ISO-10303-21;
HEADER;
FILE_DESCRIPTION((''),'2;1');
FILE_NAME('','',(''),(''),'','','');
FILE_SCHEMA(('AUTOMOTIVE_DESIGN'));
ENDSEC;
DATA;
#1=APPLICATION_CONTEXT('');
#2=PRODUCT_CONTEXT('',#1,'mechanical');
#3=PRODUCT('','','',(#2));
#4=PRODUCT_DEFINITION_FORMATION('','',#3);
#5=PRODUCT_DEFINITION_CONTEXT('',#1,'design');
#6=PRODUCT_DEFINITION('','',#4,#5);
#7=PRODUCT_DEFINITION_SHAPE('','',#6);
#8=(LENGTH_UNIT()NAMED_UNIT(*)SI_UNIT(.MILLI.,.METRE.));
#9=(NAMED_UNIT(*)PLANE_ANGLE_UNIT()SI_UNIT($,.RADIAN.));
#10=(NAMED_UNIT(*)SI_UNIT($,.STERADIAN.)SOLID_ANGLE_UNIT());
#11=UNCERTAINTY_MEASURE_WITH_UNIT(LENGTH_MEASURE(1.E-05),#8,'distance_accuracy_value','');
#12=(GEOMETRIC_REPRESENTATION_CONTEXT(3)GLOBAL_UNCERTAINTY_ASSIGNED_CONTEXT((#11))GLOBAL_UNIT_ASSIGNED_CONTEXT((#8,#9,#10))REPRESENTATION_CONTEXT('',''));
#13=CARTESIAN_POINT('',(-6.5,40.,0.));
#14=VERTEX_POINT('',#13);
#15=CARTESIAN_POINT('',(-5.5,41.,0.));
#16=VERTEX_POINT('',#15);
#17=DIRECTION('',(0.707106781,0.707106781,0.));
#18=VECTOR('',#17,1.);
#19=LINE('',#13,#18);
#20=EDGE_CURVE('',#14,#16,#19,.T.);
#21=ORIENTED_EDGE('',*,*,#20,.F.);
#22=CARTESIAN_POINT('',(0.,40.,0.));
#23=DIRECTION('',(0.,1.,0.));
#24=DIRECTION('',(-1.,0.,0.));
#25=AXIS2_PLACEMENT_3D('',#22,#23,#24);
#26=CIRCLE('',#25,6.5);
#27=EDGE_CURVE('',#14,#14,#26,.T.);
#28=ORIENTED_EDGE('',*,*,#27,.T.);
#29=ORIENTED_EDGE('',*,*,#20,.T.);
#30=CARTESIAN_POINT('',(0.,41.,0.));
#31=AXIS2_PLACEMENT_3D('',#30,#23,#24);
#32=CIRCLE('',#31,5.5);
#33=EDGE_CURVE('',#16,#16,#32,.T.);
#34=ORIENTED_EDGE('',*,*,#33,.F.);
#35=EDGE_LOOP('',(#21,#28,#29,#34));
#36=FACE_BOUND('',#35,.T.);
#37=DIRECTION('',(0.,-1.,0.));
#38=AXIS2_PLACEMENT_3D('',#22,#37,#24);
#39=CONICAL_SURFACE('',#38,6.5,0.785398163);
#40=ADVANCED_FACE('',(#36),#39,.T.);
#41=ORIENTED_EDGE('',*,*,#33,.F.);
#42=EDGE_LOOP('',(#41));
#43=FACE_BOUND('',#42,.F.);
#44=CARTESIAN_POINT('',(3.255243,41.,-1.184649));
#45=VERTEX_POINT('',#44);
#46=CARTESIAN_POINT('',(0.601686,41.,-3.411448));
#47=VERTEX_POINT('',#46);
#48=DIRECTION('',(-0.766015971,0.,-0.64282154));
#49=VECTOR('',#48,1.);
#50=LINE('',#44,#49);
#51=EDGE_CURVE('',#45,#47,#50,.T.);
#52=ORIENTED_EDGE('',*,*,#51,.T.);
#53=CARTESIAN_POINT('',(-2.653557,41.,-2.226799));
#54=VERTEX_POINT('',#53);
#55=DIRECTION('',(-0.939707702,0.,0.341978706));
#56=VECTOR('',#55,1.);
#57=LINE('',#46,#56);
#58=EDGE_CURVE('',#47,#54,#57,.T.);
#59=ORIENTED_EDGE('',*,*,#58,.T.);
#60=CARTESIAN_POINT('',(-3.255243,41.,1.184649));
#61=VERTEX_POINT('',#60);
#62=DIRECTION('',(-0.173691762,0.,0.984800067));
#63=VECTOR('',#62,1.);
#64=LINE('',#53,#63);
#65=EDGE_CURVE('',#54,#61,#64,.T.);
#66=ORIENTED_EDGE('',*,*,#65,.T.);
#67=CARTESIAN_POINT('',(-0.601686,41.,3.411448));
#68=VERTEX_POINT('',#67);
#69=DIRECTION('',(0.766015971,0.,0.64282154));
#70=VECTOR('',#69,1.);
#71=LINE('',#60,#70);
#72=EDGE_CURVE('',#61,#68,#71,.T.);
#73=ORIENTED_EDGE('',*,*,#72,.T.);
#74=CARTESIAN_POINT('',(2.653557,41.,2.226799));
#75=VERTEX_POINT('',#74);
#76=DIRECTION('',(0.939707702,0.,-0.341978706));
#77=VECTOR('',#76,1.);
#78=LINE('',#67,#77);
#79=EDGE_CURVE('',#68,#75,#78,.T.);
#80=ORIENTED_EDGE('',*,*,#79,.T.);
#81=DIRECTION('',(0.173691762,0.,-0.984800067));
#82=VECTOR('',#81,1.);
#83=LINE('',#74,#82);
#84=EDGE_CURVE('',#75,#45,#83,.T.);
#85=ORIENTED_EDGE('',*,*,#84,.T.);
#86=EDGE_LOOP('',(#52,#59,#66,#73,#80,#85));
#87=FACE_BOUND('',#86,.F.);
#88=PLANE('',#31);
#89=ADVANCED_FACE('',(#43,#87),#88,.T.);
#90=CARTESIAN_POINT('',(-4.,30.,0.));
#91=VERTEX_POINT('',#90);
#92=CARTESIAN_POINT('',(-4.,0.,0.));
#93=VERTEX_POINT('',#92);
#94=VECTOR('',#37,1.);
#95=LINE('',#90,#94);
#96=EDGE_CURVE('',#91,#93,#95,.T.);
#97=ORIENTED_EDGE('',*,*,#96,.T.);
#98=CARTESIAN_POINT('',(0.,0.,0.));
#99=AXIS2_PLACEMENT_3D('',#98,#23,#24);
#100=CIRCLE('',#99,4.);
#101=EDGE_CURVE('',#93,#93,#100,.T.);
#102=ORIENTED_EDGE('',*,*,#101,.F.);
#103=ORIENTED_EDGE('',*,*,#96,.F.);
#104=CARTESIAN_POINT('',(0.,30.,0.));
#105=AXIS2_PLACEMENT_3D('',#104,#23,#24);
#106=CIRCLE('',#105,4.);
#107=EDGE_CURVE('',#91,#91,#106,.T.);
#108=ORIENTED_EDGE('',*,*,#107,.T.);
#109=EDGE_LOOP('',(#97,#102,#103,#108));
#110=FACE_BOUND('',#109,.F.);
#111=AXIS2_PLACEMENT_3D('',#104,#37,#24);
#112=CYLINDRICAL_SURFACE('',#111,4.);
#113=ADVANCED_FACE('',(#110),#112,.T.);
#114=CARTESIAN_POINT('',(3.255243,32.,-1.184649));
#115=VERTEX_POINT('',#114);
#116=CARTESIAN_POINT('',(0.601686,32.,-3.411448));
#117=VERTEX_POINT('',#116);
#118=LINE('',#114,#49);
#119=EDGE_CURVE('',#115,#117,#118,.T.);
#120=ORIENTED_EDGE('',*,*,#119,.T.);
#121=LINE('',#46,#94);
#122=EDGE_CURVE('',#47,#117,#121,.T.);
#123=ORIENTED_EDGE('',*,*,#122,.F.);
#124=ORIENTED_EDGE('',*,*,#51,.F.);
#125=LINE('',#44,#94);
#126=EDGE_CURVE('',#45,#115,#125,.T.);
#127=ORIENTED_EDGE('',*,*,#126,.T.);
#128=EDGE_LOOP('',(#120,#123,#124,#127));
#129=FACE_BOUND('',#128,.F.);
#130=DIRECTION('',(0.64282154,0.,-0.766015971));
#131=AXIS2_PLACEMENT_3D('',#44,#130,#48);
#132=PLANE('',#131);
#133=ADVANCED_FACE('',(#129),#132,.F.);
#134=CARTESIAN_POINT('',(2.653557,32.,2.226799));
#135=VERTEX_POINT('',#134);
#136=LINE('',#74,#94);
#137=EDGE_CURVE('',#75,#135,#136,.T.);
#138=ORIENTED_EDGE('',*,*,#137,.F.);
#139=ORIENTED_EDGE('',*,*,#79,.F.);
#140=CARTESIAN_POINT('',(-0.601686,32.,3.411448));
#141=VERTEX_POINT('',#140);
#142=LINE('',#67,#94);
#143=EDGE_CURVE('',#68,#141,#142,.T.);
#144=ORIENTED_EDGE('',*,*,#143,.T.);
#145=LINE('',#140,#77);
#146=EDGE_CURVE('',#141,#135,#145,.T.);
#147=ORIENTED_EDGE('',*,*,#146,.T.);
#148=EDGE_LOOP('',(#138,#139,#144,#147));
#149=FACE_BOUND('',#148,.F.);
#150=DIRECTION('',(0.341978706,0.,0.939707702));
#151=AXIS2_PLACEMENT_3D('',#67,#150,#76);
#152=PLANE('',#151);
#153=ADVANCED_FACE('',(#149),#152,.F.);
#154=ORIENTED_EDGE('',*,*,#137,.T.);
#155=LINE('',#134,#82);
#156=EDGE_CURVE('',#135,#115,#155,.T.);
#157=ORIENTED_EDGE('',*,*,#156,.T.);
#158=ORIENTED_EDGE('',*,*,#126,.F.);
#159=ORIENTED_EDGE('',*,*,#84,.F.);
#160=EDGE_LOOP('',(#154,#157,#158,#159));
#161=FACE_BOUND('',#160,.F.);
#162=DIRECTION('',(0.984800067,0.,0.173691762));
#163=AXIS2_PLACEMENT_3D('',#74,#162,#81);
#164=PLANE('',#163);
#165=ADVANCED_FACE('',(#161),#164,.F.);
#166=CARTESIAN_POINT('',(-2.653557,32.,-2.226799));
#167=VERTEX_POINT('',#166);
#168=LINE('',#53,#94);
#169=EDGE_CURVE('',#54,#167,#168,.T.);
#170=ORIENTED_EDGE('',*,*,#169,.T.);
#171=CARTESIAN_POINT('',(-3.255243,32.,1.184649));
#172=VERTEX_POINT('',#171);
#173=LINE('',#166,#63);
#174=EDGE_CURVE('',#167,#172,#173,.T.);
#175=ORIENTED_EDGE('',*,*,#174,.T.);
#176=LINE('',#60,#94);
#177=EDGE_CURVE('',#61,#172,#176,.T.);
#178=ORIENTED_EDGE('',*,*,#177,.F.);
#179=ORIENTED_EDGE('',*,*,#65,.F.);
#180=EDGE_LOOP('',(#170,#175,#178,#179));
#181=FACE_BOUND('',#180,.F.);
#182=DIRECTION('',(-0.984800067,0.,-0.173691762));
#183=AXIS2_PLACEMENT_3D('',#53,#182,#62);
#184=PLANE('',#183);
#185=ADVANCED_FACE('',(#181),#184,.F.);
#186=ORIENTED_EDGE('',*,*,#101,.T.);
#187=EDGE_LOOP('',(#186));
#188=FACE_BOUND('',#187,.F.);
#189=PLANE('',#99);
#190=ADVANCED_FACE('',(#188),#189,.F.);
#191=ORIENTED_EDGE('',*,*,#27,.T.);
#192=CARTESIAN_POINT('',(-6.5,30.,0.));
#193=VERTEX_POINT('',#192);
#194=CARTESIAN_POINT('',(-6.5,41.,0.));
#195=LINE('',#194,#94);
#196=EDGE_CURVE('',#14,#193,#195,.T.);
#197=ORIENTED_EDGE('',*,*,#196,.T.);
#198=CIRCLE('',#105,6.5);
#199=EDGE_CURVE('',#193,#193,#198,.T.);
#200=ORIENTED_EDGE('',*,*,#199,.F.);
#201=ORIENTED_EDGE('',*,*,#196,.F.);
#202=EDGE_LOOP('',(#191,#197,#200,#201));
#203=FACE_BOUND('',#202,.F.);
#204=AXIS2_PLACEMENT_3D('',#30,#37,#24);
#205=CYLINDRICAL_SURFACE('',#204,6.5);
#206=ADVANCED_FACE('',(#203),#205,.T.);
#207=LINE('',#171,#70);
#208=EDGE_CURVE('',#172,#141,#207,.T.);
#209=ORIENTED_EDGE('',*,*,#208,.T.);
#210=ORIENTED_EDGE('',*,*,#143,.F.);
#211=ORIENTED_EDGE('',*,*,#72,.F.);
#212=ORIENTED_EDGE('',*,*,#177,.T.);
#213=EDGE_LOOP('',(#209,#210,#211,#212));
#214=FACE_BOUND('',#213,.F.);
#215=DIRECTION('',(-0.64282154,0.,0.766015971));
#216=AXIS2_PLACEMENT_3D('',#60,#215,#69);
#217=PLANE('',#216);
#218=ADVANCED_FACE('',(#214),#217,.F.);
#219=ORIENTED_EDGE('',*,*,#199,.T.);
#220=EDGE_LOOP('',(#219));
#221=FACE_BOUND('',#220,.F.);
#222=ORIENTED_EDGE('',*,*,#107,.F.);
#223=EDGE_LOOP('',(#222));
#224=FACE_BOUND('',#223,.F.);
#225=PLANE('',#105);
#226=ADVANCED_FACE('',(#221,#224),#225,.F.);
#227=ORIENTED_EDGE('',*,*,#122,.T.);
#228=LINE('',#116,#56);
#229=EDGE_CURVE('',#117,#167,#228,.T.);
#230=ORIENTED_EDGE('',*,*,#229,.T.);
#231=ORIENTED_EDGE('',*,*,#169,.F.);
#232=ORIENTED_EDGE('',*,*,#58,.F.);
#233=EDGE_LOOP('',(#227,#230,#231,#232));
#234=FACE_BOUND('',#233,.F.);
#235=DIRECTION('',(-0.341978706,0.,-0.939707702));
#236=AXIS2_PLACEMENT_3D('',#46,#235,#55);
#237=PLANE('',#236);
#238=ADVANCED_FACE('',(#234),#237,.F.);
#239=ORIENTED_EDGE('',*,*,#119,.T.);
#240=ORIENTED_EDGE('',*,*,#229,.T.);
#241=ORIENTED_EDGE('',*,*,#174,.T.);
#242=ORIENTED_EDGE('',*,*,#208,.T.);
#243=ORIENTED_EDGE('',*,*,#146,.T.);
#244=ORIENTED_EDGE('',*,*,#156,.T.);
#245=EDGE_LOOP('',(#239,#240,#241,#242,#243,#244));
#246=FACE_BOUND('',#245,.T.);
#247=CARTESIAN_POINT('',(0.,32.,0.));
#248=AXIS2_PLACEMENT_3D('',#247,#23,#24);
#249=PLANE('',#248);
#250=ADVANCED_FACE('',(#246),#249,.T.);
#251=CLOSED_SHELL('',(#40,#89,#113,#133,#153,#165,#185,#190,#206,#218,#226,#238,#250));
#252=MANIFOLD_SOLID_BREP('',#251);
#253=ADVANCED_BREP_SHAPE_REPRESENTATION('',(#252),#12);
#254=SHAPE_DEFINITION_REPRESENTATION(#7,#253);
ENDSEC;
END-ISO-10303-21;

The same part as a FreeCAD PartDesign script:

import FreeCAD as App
import Part
import Sketcher
Q = App.Units.Quantity


def edges_at(feature, points):
    """Names of the edges that pass closest to the given points."""
    edges = feature.Shape.Edges
    near = lambda p: min(range(len(edges)), key=lambda i: edges[i].distToShape(Part.Vertex(*p))[0])
    return sorted({f"Edge{near(p) + 1}" for p in points})

doc = App.newDocument("Part")
body = doc.addObject("PartDesign::Body", "Body")

sketch1 = doc.addObject("Sketcher::SketchObject", "Sketch")
body.addObject(sketch1)
sketch1.AttachmentSupport = (doc.XY_Plane, [""])
sketch1.MapMode = "FlatFace"
sketch1.addGeometry([
    Part.LineSegment(App.Vector(-4, 0, 0), App.Vector(0, 0, 0)),
    Part.LineSegment(App.Vector(0, 0, 0), App.Vector(0, 41, 0)),
    Part.LineSegment(App.Vector(0, 41, 0), App.Vector(-6.5, 41, 0)),
    Part.LineSegment(App.Vector(-6.5, 41, 0), App.Vector(-6.5, 30, 0)),
    Part.LineSegment(App.Vector(-6.5, 30, 0), App.Vector(-4, 30, 0)),
    Part.LineSegment(App.Vector(-4, 30, 0), App.Vector(-4, 0, 0)),
], False)
sketch1.addConstraint([
    Sketcher.Constraint("Coincident", 0, 2, 1, 1),
    Sketcher.Constraint("Coincident", 1, 2, 2, 1),
    Sketcher.Constraint("Coincident", 2, 2, 3, 1),
    Sketcher.Constraint("Coincident", 3, 2, 4, 1),
    Sketcher.Constraint("Coincident", 4, 2, 5, 1),
    Sketcher.Constraint("Coincident", 5, 2, 0, 1),
    Sketcher.Constraint("Horizontal", 0),
    Sketcher.Constraint("Vertical", 1),
    Sketcher.Constraint("Horizontal", 2),
    Sketcher.Constraint("Vertical", 3),
    Sketcher.Constraint("Horizontal", 4),
    Sketcher.Constraint("Vertical", 5),
    Sketcher.Constraint("Coincident", 0, 2, -1, 1),
    Sketcher.Constraint("DistanceX", 0, 1, 0, 2, Q("4 mm")),
    Sketcher.Constraint("DistanceY", 1, 1, 1, 2, Q("41 mm")),
    Sketcher.Constraint("DistanceY", 3, 2, 3, 1, Q("11 mm")),
    Sketcher.Constraint("DistanceX", 2, 2, 2, 1, Q("6.5 mm")),
])
revolution = doc.addObject("PartDesign::Revolution", "Revolution")
body.addObject(revolution)
revolution.Profile = sketch1
revolution.ReferenceAxis = (sketch1, ["V_Axis"])
revolution.Angle = 360

sketch2 = doc.addObject("Sketcher::SketchObject", "Sketch001")
body.addObject(sketch2)
sketch2.AttachmentSupport = (doc.XZ_Plane, [""])
sketch2.MapMode = "FlatFace"
sketch2.AttachmentOffset = App.Placement(App.Vector(0, 0, -41), App.Rotation())
sketch2.addGeometry([
    Part.LineSegment(App.Vector(3.255243, -1.184649, 0), App.Vector(0.601686, -3.411448, 0)),
    Part.LineSegment(App.Vector(0.601686, -3.411448, 0), App.Vector(-2.653557, -2.226799, 0)),
    Part.LineSegment(App.Vector(-2.653557, -2.226799, 0), App.Vector(-3.255243, 1.184649, 0)),
    Part.LineSegment(App.Vector(-3.255243, 1.184649, 0), App.Vector(-0.601686, 3.411448, 0)),
    Part.LineSegment(App.Vector(-0.601686, 3.411448, 0), App.Vector(2.653557, 2.226799, 0)),
    Part.LineSegment(App.Vector(2.653557, 2.226799, 0), App.Vector(3.255243, -1.184649, 0)),
], False)
sketch2.addConstraint([
    Sketcher.Constraint("Coincident", 0, 2, 1, 1),
    Sketcher.Constraint("Coincident", 1, 2, 2, 1),
    Sketcher.Constraint("Coincident", 2, 2, 3, 1),
    Sketcher.Constraint("Coincident", 3, 2, 4, 1),
    Sketcher.Constraint("Coincident", 4, 2, 5, 1),
    Sketcher.Constraint("Coincident", 5, 2, 0, 1),
    Sketcher.Constraint("Symmetric", 0, 2, 3, 2, -1, 1),
    Sketcher.Constraint("Symmetric", 1, 2, 4, 2, -1, 1),
    Sketcher.Constraint("Symmetric", 2, 2, 5, 2, -1, 1),
    Sketcher.Constraint("Equal", 0, 1),
    Sketcher.Constraint("Equal", 1, 2),
    Sketcher.Constraint("Distance", 0, Q("3.464101 mm")),
    Sketcher.Constraint("DistanceY", 1, 2, -1, 1, Q("2.226799 mm")),
    Sketcher.Constraint("DistanceY", 2, 2, 3, 2, Q("2.226799 mm")),
    Sketcher.Constraint("DistanceX", 2, 2, 4, 2, Q("5.9088 mm")),
])
pocket1 = doc.addObject("PartDesign::Pocket", "Pocket")
body.addObject(pocket1)
pocket1.Profile = sketch2
pocket1.Length = 9
pocket1.Reversed = True
doc.recompute()

chamfer = doc.addObject("PartDesign::Chamfer", "Chamfer")
body.addObject(chamfer)
chamfer.Base = (pocket1, edges_at(pocket1, [(6.5, 41, 0)]))
chamfer.Size = 1

doc.recompute()
